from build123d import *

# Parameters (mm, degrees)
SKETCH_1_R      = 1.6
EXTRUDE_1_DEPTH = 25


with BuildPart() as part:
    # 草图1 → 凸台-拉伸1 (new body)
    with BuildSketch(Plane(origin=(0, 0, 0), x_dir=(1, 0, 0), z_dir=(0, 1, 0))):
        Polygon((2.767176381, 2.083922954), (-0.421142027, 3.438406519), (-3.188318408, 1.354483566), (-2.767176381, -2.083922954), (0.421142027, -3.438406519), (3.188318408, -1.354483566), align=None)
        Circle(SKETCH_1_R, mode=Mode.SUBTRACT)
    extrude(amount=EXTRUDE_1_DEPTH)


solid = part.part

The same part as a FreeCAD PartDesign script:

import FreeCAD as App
import Part
import Sketcher

V = App.Vector

doc = App.newDocument("Part")
body = doc.addObject("PartDesign::Body", "Body")

# Sketch on XZ plane
sketch1 = body.newObject("Sketcher::SketchObject", "Sketch")
sketch1.AttachmentSupport = (doc.getObject("XZ_Plane"), [""])
sketch1.MapMode = "FlatFace"
sketch1.addGeometry([
    Part.LineSegment(V(2.8, -2.1, 0), V(-0.4, -3.4, 0)),  # 0
    Part.LineSegment(V(-0.4, -3.4, 0), V(-3.2, -1.4, 0)),  # 1
    Part.LineSegment(V(-3.2, -1.4, 0), V(-2.8, 2.1, 0)),  # 2
    Part.LineSegment(V(-2.8, 2.1, 0), V(0.4, 3.4, 0)),  # 3
    Part.LineSegment(V(0.4, 3.4, 0), V(3.2, 1.4, 0)),  # 4
    Part.LineSegment(V(3.2, 1.4, 0), V(2.8, -2.1, 0)),  # 5
    Part.Circle(V(0, 0, 0), V(0, 0, 1), 1.6),  # 6
], False)
sketch1.addConstraint([
    Sketcher.Constraint("Coincident", 0, 2, 1, 1),
    Sketcher.Constraint("Coincident", 1, 2, 2, 1),
    Sketcher.Constraint("Coincident", 2, 2, 3, 1),
    Sketcher.Constraint("Coincident", 3, 2, 4, 1),
    Sketcher.Constraint("Coincident", 4, 2, 5, 1),
    Sketcher.Constraint("Coincident", 5, 2, 0, 1),
    Sketcher.Constraint("Coincident", 6, 3, -1, 1),
    Sketcher.Constraint("Symmetric", 0, 2, 3, 2, -1, 1),
    Sketcher.Constraint("Symmetric", 1, 2, 4, 2, -1, 1),
    Sketcher.Constraint("Symmetric", 2, 2, 5, 2, -1, 1),
    Sketcher.Constraint("Equal", 0, 1),
    Sketcher.Constraint("Equal", 1, 2),
    Sketcher.Constraint("Diameter", 6, 3.2),
    Sketcher.Constraint("Distance", 0, 3.464102),
    Sketcher.Constraint("DistanceX", 1, 2, -1, 1, 3.188318),
    Sketcher.Constraint("DistanceY", 0, 2, 2, 2, 5.522329),
    Sketcher.Constraint("DistanceX", 2, 2, 3, 2, 3.188318),
])
pad1 = body.newObject("PartDesign::Pad", "Pad")
pad1.Profile = sketch1
pad1.Length = 25
pad1.Reversed = True

doc.recompute()
